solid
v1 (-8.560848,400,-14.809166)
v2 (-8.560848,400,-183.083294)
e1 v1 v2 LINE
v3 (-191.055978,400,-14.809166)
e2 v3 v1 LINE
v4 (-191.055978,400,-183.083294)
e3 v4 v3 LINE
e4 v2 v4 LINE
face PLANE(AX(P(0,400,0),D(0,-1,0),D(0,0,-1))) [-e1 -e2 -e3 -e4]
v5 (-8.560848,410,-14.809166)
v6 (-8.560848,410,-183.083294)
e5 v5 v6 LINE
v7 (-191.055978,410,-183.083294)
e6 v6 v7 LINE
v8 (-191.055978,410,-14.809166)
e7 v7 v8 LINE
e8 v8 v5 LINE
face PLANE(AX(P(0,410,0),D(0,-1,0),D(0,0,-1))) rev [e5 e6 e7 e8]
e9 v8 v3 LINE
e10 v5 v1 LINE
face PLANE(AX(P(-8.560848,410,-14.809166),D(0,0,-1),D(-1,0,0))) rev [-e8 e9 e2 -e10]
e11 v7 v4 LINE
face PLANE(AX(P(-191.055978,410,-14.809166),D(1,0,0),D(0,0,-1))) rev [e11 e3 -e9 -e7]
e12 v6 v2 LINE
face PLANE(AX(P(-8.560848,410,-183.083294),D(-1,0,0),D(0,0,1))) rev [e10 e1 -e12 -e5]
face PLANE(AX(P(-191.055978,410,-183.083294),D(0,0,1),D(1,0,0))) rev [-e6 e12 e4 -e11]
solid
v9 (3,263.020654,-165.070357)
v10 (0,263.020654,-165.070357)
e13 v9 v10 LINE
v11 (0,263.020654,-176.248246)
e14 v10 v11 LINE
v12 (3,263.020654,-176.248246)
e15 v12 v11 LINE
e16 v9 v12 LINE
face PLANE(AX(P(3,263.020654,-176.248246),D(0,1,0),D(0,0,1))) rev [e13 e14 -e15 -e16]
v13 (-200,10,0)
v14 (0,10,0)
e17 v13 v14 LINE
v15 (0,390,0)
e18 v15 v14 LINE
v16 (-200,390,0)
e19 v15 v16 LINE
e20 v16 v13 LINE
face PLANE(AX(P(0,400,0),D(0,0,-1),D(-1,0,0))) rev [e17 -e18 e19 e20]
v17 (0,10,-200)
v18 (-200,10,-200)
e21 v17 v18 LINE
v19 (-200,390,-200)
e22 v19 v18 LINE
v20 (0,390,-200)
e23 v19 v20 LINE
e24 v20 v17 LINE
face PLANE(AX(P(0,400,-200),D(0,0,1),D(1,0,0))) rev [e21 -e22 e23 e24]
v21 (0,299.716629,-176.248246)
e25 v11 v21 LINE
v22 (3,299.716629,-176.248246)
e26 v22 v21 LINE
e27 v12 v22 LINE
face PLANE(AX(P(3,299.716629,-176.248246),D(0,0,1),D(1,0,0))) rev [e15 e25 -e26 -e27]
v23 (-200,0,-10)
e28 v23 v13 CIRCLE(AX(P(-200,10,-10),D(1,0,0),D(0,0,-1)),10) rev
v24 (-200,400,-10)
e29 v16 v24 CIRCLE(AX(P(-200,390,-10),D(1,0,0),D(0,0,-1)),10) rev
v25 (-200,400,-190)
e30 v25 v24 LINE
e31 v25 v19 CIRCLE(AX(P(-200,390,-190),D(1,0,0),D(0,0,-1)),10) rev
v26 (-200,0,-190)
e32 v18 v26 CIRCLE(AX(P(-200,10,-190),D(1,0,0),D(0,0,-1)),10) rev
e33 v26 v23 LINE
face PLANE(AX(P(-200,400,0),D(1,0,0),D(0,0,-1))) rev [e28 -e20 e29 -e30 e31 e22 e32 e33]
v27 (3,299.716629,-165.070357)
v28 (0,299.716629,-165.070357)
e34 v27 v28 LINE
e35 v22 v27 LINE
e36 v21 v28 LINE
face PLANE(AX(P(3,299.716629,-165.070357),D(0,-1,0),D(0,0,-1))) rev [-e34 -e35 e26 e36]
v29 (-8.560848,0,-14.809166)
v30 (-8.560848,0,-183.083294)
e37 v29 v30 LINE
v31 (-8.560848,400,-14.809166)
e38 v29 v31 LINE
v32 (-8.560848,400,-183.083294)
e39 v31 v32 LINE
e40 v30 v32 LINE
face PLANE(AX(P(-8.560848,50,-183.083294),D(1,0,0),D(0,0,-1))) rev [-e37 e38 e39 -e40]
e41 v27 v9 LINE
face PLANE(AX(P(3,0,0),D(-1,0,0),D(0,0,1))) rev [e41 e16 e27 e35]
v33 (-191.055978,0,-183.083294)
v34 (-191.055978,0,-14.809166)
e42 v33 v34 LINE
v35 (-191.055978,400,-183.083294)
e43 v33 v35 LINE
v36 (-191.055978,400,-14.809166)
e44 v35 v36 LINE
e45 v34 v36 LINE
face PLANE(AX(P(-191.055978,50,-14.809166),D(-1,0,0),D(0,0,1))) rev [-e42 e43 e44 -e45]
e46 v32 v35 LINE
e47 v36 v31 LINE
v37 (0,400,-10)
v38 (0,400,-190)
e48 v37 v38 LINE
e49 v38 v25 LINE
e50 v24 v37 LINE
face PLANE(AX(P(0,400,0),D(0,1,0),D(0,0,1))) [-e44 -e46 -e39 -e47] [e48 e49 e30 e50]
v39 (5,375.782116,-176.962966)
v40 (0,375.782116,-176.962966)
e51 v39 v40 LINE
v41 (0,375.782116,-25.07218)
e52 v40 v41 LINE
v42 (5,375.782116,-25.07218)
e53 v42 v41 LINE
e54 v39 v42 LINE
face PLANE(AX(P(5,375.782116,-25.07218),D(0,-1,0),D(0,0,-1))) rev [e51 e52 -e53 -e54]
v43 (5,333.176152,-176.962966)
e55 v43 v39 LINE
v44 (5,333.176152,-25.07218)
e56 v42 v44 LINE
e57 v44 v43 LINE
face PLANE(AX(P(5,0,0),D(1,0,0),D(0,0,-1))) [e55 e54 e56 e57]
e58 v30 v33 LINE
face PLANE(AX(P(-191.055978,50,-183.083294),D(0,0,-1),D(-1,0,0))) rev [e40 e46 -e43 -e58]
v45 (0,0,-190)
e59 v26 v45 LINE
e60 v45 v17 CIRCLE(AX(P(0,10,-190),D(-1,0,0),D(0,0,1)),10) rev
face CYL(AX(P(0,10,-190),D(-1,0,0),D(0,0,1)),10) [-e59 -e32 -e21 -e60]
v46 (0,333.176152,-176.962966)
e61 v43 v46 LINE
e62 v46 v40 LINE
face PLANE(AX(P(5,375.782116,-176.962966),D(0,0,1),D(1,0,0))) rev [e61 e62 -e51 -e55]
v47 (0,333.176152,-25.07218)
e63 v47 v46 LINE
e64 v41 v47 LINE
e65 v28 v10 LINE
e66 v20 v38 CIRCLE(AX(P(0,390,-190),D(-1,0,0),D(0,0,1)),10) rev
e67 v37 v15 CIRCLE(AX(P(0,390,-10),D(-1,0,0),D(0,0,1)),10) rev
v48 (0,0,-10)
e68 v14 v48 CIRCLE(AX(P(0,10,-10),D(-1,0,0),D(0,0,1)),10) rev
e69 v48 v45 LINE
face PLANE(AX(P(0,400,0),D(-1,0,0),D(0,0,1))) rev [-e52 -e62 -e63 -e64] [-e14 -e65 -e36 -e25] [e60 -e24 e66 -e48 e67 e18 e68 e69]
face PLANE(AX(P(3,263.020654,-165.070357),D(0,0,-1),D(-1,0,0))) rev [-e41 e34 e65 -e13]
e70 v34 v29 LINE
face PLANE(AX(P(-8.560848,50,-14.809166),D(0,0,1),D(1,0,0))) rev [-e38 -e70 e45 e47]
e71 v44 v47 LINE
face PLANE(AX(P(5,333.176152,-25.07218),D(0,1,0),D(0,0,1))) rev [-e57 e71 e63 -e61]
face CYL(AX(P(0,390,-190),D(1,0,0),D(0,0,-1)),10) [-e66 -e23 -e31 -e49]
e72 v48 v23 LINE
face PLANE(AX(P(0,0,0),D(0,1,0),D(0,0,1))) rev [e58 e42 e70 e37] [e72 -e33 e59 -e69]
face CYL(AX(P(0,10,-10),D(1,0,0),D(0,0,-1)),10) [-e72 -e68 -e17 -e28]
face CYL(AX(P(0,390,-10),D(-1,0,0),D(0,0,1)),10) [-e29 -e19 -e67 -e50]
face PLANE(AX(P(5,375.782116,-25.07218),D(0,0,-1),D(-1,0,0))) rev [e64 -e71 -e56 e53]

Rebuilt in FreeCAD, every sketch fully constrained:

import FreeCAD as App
import Part
import Sketcher
Q = App.Units.Quantity


def edges_at(feature, points):
    """Names of the edges that pass closest to the given points."""
    edges = feature.Shape.Edges
    near = lambda p: min(range(len(edges)), key=lambda i: edges[i].distToShape(Part.Vertex(*p))[0])
    return sorted({f"Edge{near(p) + 1}" for p in points})


def add_polygon(sketch, points):
    """Adds a closed chain of lines whose ends are joined by coincident constraints."""
    first, n = sketch.GeometryCount, len(points)
    for a, b in zip(points, points[1:] + points[:1]):
        sketch.addGeometry(Part.LineSegment(App.Vector(*a, 0), App.Vector(*b, 0)), False)
    for i in range(n):
        sketch.addConstraint(Sketcher.Constraint("Coincident", first + i, 2, first + (i + 1) % n, 1))

doc = App.newDocument("Part")
params = doc.addObject("Spreadsheet::Sheet", "Params")
for row, (alias, value) in enumerate([
    ("sketch1_width", "200 mm"),
    ("pad1_length", "400 mm"),
    ("fillet_radius", "10 mm"),
    ("fillet2_radius", "10 mm"),
    ("fillet3_radius", "10 mm"),
    ("fillet4_radius", "10 mm"),
    ("pad2_length", "5 mm"),
    ("pad3_length", "3 mm"),
    ("pocket1_length", "350 mm"),
    ("pocket2_length", "175 mm"),
    ("pad4_length", "10 mm"),
], start=1):
    params.set(f"A{row}", alias)
    params.set(f"B{row}", "=" + value)
    params.setAlias(f"B{row}", alias)

body = doc.addObject("PartDesign::Body", "Body")

sketch1 = doc.addObject("Sketcher::SketchObject", "Sketch")
body.addObject(sketch1)
sketch1.AttachmentSupport = (doc.XZ_Plane, [""])
sketch1.MapMode = "FlatFace"
add_polygon(sketch1, [(-200, -200), (-200, 0), (0, 0), (0, -200)])
sketch1.addConstraint([
    Sketcher.Constraint("Vertical", 0),
    Sketcher.Constraint("Horizontal", 1),
    Sketcher.Constraint("Vertical", 2),
    Sketcher.Constraint("Horizontal", 3),
    Sketcher.Constraint("Coincident", 1, 2, -1, 1),
    Sketcher.Constraint("Equal", 3, 0),
    Sketcher.Constraint("DistanceX", 1, 1, 1, 2, Q("200 mm")),
])
sketch1.setExpression("Constraints[10]", "Params.sketch1_width")
pad1 = doc.addObject("PartDesign::Pad", "Pad")
body.addObject(pad1)
pad1.Profile = sketch1
pad1.setExpression("Length", "Params.pad1_length")
pad1.Reversed = True
doc.recompute()

fillet = doc.addObject("PartDesign::Fillet", "Fillet")
body.addObject(fillet)
fillet.Base = (pad1, edges_at(pad1, [(-100, 400, 0)]))
fillet.setExpression("Radius", "Params.fillet_radius")
doc.recompute()

fillet2 = doc.addObject("PartDesign::Fillet", "Fillet001")
body.addObject(fillet2)
fillet2.Base = (fillet, edges_at(fillet, [(-100, 400, -200)]))
fillet2.setExpression("Radius", "Params.fillet2_radius")
doc.recompute()

fillet3 = doc.addObject("PartDesign::Fillet", "Fillet002")
body.addObject(fillet3)
fillet3.Base = (fillet2, edges_at(fillet2, [(-100, 0, 0)]))
fillet3.setExpression("Radius", "Params.fillet3_radius")
doc.recompute()

fillet4 = doc.addObject("PartDesign::Fillet", "Fillet003")
body.addObject(fillet4)
fillet4.Base = (fillet3, edges_at(fillet3, [(-100, 0, -200)]))
fillet4.setExpression("Radius", "Params.fillet4_radius")

sketch2 = doc.addObject("Sketcher::SketchObject", "Sketch001")
body.addObject(sketch2)
sketch2.AttachmentSupport = (doc.YZ_Plane, [""])
sketch2.MapMode = "FlatFace"
add_polygon(sketch2, [(376, -25), (333, -25), (333, -177), (376, -177)])
sketch2.addConstraint([
    Sketcher.Constraint("Horizontal", 0),
    Sketcher.Constraint("Vertical", 1),
    Sketcher.Constraint("Horizontal", 2),
    Sketcher.Constraint("Vertical", 3),
    Sketcher.Constraint("DistanceX", 0, 2, 0, 1, Q("42.605964 mm")),
    Sketcher.Constraint("DistanceY", 1, 2, 1, 1, Q("151.890786 mm")),
    Sketcher.Constraint("DistanceY", 0, 2, -1, 1, Q("25.07218 mm")),
    Sketcher.Constraint("DistanceX", -1, 1, 0, 2, Q("333.176152 mm")),
])
pad2 = doc.addObject("PartDesign::Pad", "Pad001")
body.addObject(pad2)
pad2.Profile = sketch2
pad2.setExpression("Length", "Params.pad2_length")

sketch3 = doc.addObject("Sketcher::SketchObject", "Sketch002")
body.addObject(sketch3)
sketch3.AttachmentSupport = (doc.YZ_Plane, [""])
sketch3.MapMode = "FlatFace"
add_polygon(sketch3, [(300, -165), (263, -165), (263, -176), (300, -176)])
sketch3.addConstraint([
    Sketcher.Constraint("Horizontal", 0),
    Sketcher.Constraint("Vertical", 1),
    Sketcher.Constraint("Horizontal", 2),
    Sketcher.Constraint("Vertical", 3),
    Sketcher.Constraint("DistanceY", 1, 2, 1, 1, Q("11.177889 mm")),
    Sketcher.Constraint("DistanceX", 0, 2, 0, 1, Q("36.695975 mm")),
    Sketcher.Constraint("DistanceX", -1, 1, 2, 2, Q("299.716629 mm")),
    Sketcher.Constraint("DistanceY", 0, 2, -1, 1, Q("165.070357 mm")),
])
pad3 = doc.addObject("PartDesign::Pad", "Pad002")
body.addObject(pad3)
pad3.Profile = sketch3
pad3.setExpression("Length", "Params.pad3_length")

sketch4 = doc.addObject("Sketcher::SketchObject", "Sketch003")
body.addObject(sketch4)
sketch4.AttachmentSupport = (doc.XZ_Plane, [""])
sketch4.MapMode = "FlatFace"
sketch4.AttachmentOffset = App.Placement(App.Vector(0, 0, -400), App.Rotation())
add_polygon(sketch4, [(-191, -183), (-191, -15), (-9, -15), (-9, -183)])
sketch4.addConstraint([
    Sketcher.Constraint("Vertical", 0),
    Sketcher.Constraint("Horizontal", 1),
    Sketcher.Constraint("Vertical", 2),
    Sketcher.Constraint("Horizontal", 3),
    Sketcher.Constraint("DistanceX", 1, 1, 1, 2, Q("182.49513 mm")),
    Sketcher.Constraint("DistanceY", 0, 1, 0, 2, Q("168.274128 mm")),
    Sketcher.Constraint("DistanceX", 0, 2, -1, 1, Q("191.055978 mm")),
    Sketcher.Constraint("DistanceY", 0, 2, -1, 1, Q("14.809166 mm")),
])
pocket1 = doc.addObject("PartDesign::Pocket", "Pocket")
body.addObject(pocket1)
pocket1.Profile = sketch4
pocket1.setExpression("Length", "Params.pocket1_length")
pocket1.Reversed = True

sketch5 = doc.addObject("Sketcher::SketchObject", "Sketch004")
body.addObject(sketch5)
sketch5.AttachmentSupport = (doc.XZ_Plane, [""])
sketch5.MapMode = "FlatFace"
sketch5.AttachmentOffset = App.Placement(App.Vector(0, 0, -50), App.Rotation())
add_polygon(sketch5, [(-191, -183), (-191, -15), (-9, -15), (-9, -183)])
sketch5.addConstraint([
    Sketcher.Constraint("Vertical", 0),
    Sketcher.Constraint("Horizontal", 1),
    Sketcher.Constraint("Vertical", 2),
    Sketcher.Constraint("Horizontal", 3),
    Sketcher.Constraint("DistanceX", 1, 1, 1, 2, Q("182.49513 mm")),
    Sketcher.Constraint("DistanceY", 0, 1, 0, 2, Q("168.274128 mm")),
    Sketcher.Constraint("DistanceX", 0, 2, -1, 1, Q("191.055978 mm")),
    Sketcher.Constraint("DistanceY", 0, 2, -1, 1, Q("14.809166 mm")),
])
pocket2 = doc.addObject("PartDesign::Pocket", "Pocket001")
body.addObject(pocket2)
pocket2.Profile = sketch5
pocket2.setExpression("Length", "Params.pocket2_length")
pocket2.Reversed = True
body2 = doc.addObject("PartDesign::Body", "Body001")

sketch6 = doc.addObject("Sketcher::SketchObject", "Sketch005")
body2.addObject(sketch6)
sketch6.AttachmentSupport = (doc.getObject("XZ_Plane001"), [""])
sketch6.MapMode = "FlatFace"
sketch6.AttachmentOffset = App.Placement(App.Vector(0, 0, -400), App.Rotation())
add_polygon(sketch6, [(-191, -183), (-191, -15), (-9, -15), (-9, -183)])
sketch6.addConstraint([
    Sketcher.Constraint("Vertical", 0),
    Sketcher.Constraint("Horizontal", 1),
    Sketcher.Constraint("Vertical", 2),
    Sketcher.Constraint("Horizontal", 3),
    Sketcher.Constraint("DistanceX", 1, 1, 1, 2, Q("182.49513 mm")),
    Sketcher.Constraint("DistanceY", 0, 1, 0, 2, Q("168.274128 mm")),
    Sketcher.Constraint("DistanceX", 0, 2, -1, 1, Q("191.055978 mm")),
    Sketcher.Constraint("DistanceY", 0, 2, -1, 1, Q("14.809166 mm")),
])
pad4 = doc.addObject("PartDesign::Pad", "Pad003")
body2.addObject(pad4)
pad4.Profile = sketch6
pad4.setExpression("Length", "Params.pad4_length")
pad4.Reversed = True

doc.recompute()
